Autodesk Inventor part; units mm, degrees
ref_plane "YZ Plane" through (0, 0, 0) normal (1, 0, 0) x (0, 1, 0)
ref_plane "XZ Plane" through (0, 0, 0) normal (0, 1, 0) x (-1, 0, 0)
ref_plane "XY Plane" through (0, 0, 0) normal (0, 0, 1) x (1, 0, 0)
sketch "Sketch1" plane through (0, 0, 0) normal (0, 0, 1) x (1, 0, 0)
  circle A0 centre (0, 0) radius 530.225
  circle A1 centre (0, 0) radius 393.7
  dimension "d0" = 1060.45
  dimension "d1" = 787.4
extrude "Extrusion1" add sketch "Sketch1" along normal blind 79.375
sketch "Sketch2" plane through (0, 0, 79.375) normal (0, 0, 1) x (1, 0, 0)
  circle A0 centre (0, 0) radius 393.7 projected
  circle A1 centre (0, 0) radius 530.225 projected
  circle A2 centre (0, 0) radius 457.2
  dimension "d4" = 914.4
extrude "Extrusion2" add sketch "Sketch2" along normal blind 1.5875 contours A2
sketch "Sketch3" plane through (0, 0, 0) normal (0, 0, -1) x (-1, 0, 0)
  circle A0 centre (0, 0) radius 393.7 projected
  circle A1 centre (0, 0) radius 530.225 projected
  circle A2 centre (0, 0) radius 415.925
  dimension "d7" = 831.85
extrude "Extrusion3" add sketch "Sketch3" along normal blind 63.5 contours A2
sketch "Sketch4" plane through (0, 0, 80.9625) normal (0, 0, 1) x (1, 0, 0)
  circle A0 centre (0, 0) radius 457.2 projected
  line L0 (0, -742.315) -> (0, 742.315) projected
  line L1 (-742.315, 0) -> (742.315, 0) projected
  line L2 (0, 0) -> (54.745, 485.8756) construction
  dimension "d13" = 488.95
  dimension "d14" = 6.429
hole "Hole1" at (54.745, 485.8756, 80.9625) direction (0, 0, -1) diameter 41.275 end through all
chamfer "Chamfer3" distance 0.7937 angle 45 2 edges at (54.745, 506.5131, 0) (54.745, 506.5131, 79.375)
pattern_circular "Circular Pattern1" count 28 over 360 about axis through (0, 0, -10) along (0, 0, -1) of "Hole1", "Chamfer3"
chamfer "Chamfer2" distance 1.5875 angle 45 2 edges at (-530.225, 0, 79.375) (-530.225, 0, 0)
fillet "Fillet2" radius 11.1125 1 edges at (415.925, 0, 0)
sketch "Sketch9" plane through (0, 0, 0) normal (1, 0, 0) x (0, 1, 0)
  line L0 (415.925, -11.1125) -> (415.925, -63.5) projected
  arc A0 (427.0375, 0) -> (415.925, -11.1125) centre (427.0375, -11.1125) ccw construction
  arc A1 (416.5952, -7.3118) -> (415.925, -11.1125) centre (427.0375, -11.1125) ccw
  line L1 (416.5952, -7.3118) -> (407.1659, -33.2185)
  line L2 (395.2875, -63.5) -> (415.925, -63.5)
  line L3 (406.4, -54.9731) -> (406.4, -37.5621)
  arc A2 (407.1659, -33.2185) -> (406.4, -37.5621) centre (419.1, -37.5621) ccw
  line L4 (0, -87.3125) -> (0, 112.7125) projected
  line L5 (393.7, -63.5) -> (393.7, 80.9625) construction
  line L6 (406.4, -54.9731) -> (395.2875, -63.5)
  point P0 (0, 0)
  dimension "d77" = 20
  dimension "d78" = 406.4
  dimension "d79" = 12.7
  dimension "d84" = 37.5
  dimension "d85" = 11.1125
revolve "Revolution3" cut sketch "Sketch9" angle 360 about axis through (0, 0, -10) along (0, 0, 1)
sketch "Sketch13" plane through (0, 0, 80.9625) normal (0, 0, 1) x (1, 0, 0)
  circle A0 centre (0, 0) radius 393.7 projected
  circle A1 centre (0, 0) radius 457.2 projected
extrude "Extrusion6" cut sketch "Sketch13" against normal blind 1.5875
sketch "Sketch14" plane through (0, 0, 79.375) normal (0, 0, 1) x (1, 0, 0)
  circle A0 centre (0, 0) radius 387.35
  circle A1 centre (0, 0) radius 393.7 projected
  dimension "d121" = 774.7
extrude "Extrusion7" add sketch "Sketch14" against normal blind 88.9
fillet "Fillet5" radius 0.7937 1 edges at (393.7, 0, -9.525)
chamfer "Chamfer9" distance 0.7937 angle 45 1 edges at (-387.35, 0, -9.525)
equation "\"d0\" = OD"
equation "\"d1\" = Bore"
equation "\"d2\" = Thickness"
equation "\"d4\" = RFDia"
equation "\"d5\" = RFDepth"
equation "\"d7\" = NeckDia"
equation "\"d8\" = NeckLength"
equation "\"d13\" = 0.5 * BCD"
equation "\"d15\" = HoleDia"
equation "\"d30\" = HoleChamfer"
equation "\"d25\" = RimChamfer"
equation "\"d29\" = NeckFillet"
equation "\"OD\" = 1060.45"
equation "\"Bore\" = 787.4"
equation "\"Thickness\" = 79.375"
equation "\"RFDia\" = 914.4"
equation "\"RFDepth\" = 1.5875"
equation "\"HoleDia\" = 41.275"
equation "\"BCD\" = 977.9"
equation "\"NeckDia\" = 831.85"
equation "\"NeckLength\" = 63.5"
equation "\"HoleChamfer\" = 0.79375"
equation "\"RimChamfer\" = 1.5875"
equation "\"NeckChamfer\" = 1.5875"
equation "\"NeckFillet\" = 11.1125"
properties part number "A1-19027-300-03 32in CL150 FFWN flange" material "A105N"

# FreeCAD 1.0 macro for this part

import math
import FreeCAD as App
import Part
import Sketcher
Q = App.Units.Quantity


def edges_at(feature, points):
    """Names of the edges that pass closest to the given points."""
    edges = feature.Shape.Edges
    near = lambda p: min(range(len(edges)), key=lambda i: edges[i].distToShape(Part.Vertex(*p))[0])
    return sorted({f"Edge{near(p) + 1}" for p in points})

doc = App.newDocument("Part")
params = doc.addObject("Spreadsheet::Sheet", "Params")
for row, (alias, value) in enumerate([
    ("sketch1_diameter", "31 in"),
    ("sketch1_diameter2", "41.75 in"),
    ("pad1_length", "3.125 in"),
    ("sketch2_diameter", "36 in"),
    ("sketch2_diameter2", "31 in"),
    ("pad2_length", "0.0625 in"),
    ("sketch3_diameter", "32.75 in"),
    ("sketch3_diameter2", "31 in"),
    ("pad3_length", "2.5 in"),
    ("sketch4_diameter", "1.625 in"),
    ("hole_diameter", "1.625 in"),
    ("chamfer_size", "0.031248 in"),
    ("chamfer2_size", "0.0625 in"),
    ("fillet_radius", "0.4375 in"),
    ("sketch5_radius", "0.5 in"),
    ("sketch5_width", "0.8125 in"),
    ("groove_angle", "360 deg"),
    ("sketch6_diameter", "36 in"),
    ("sketch6_diameter2", "31 in"),
    ("pocket1_length", "0.0625 in"),
    ("sketch7_diameter", "30.5 in"),
    ("sketch7_diameter2", "31 in"),
    ("pad4_length", "3.5 in"),
    ("fillet2_radius", "0.031248 in"),
    ("chamfer3_size", "0.031248 in"),
], start=1):
    params.set(f"A{row}", alias)
    params.set(f"B{row}", "=" + value)
    params.setAlias(f"B{row}", alias)

body = doc.addObject("PartDesign::Body", "Body")

# Sketch on XY plane
sketch1 = doc.addObject("Sketcher::SketchObject", "Sketch")
body.addObject(sketch1)
sketch1.AttachmentSupport = (doc.XY_Plane, [""])
sketch1.MapMode = "FlatFace"
sketch1.addGeometry([
    Part.Circle(App.Vector(0, 0, 0), App.Vector(0, 0, 1), 530.225),
    Part.Circle(App.Vector(0, 0, 0), App.Vector(0, 0, 1), 393.7),
], False)
sketch1.addConstraint([
    Sketcher.Constraint("Coincident", 0, 3, -1, 1),
    Sketcher.Constraint("Coincident", 1, 3, -1, 1),
    Sketcher.Constraint("Diameter", 1, Q("31 in")),
    Sketcher.Constraint("Diameter", 0, Q("41.75 in")),
])
sketch1.setExpression("Constraints[2]", "Params.sketch1_diameter")
sketch1.setExpression("Constraints[3]", "Params.sketch1_diameter2")
pad1 = doc.addObject("PartDesign::Pad", "Pad")
body.addObject(pad1)
pad1.Profile = sketch1
pad1.setExpression("Length", "Params.pad1_length")

# Sketch on XY plane
sketch2 = doc.addObject("Sketcher::SketchObject", "Sketch001")
body.addObject(sketch2)
sketch2.AttachmentSupport = (doc.XY_Plane, [""])
sketch2.MapMode = "FlatFace"
sketch2.AttachmentOffset = App.Placement(App.Vector(0, 0, 3.125 * 25.4), App.Rotation())
sketch2.addGeometry([
    Part.Circle(App.Vector(0, 0, 0), App.Vector(0, 0, 1), 457.2),
    Part.Circle(App.Vector(0, 0, 0), App.Vector(0, 0, 1), 393.7),
], False)
sketch2.addConstraint([
    Sketcher.Constraint("Coincident", 0, 3, -1, 1),
    Sketcher.Constraint("Coincident", 1, 3, -1, 1),
    Sketcher.Constraint("Diameter", 0, Q("36 in")),
    Sketcher.Constraint("Diameter", 1, Q("31 in")),
])
sketch2.setExpression("Constraints[2]", "Params.sketch2_diameter")
sketch2.setExpression("Constraints[3]", "Params.sketch2_diameter2")
pad2 = doc.addObject("PartDesign::Pad", "Pad001")
body.addObject(pad2)
pad2.Profile = sketch2
pad2.setExpression("Length", "Params.pad2_length")

# Sketch on XY plane
sketch3 = doc.addObject("Sketcher::SketchObject", "Sketch002")
body.addObject(sketch3)
sketch3.AttachmentSupport = (doc.XY_Plane, [""])
sketch3.MapMode = "FlatFace"
sketch3.addGeometry([
    Part.Circle(App.Vector(0, 0, 0), App.Vector(0, 0, 1), 415.925),
    Part.Circle(App.Vector(0, 0, 0), App.Vector(0, 0, 1), 393.7),
], False)
sketch3.addConstraint([
    Sketcher.Constraint("Coincident", 0, 3, -1, 1),
    Sketcher.Constraint("Coincident", 1, 3, -1, 1),
    Sketcher.Constraint("Diameter", 0, Q("32.75 in")),
    Sketcher.Constraint("Diameter", 1, Q("31 in")),
])
sketch3.setExpression("Constraints[2]", "Params.sketch3_diameter")
sketch3.setExpression("Constraints[3]", "Params.sketch3_diameter2")
pad3 = doc.addObject("PartDesign::Pad", "Pad002")
body.addObject(pad3)
pad3.Profile = sketch3
pad3.setExpression("Length", "Params.pad3_length")
pad3.Reversed = True

# Sketch on XY plane
sketch4 = doc.addObject("Sketcher::SketchObject", "Sketch003")
body.addObject(sketch4)
sketch4.AttachmentSupport = (doc.XY_Plane, [""])
sketch4.MapMode = "FlatFace"
sketch4.AttachmentOffset = App.Placement(App.Vector(0, 0, 3.1875 * 25.4), App.Rotation())
sketch4.addGeometry(Part.Circle(App.Vector(54.745, 485.8756, 0), App.Vector(0, 0, 1), 20.6375), False)
sketch4.addConstraint([
    Sketcher.Constraint("Diameter", 0, Q("1.625 in")),
    Sketcher.Constraint("DistanceX", -1, 1, 0, 3, 54.745),
    Sketcher.Constraint("DistanceY", -1, 1, 0, 3, 485.8756),
])
sketch4.setExpression("Constraints[0]", "Params.sketch4_diameter")
doc.recompute()
hole = doc.addObject("PartDesign::Hole", "Hole")
body.addObject(hole)
hole.Profile = sketch4
hole.ThreadType = "None"
hole.setExpression("Diameter", "Params.hole_diameter")
hole.DepthType = "ThroughAll"
doc.recompute()

chamfer = doc.addObject("PartDesign::Chamfer", "Chamfer")
body.addObject(chamfer)
chamfer.Base = (hole, edges_at(hole, [(54.745, 506.513, 0), (54.745, 506.513, 79.375)]))
chamfer.setExpression("Size", "Params.chamfer_size")
doc.recompute()

polarpattern = doc.addObject("PartDesign::PolarPattern", "PolarPattern")
body.addObject(polarpattern)
polarpattern.Originals = [hole, chamfer]
polarpattern.Axis = (doc.Z_Axis, [""])
polarpattern.Angle = 360
polarpattern.Occurrences = 28
body.Tip = polarpattern
doc.recompute()

chamfer2 = doc.addObject("PartDesign::Chamfer", "Chamfer001")
body.addObject(chamfer2)
chamfer2.Base = (polarpattern, edges_at(polarpattern, [(-530.225, 0, 79.375), (-530.225, 0, 0)]))
chamfer2.setExpression("Size", "Params.chamfer2_size")
doc.recompute()

fillet = doc.addObject("PartDesign::Fillet", "Fillet")
body.addObject(fillet)
fillet.Base = (chamfer2, edges_at(chamfer2, [(415.925, 0, 0)]))
fillet.setExpression("Radius", "Params.fillet_radius")

# Sketch on YZ plane
sketch5 = doc.addObject("Sketcher::SketchObject", "Sketch004")
body.addObject(sketch5)
sketch5.AttachmentSupport = (doc.YZ_Plane, [""])
sketch5.MapMode = "FlatFace"
sketch5.addGeometry([
    Part.LineSegment(App.Vector(415.925, -63.5, 0), App.Vector(415.925, -11.1125, 0)),  # 0
    Part.ArcOfCircle(Part.Circle(App.Vector(427.038514, -11.112772, 0), App.Vector(0, 0, 1), 11.113514), math.radians(160.000406), math.radians(179.998599)),  # 1
    Part.LineSegment(App.Vector(416.5952, -7.3118, 0), App.Vector(407.1659, -33.2185, 0)),  # 2
    Part.ArcOfCircle(Part.Circle(App.Vector(419.1, -37.5621, 0), App.Vector(0, 0, 1), 12.699984), math.radians(160.000242), math.radians(180)),  # 3
    Part.LineSegment(App.Vector(406.4, -37.5621, 0), App.Vector(406.4, -54.9731, 0)),  # 4
    Part.LineSegment(App.Vector(406.4, -54.9731, 0), App.Vector(395.2875, -63.5, 0)),  # 5
    Part.LineSegment(App.Vector(395.2875, -63.5, 0), App.Vector(415.925, -63.5, 0)),  # 6
], False)
sketch5.addConstraint([
    Sketcher.Constraint("Tangent", 0, 2, 1, 2),
    Sketcher.Constraint("Tangent", 1, 1, 2, 1),
    Sketcher.Constraint("Tangent", 2, 2, 3, 1),
    Sketcher.Constraint("Tangent", 3, 2, 4, 1),
    Sketcher.Constraint("Coincident", 4, 2, 5, 1),
    Sketcher.Constraint("Coincident", 5, 2, 6, 1),
    Sketcher.Constraint("Coincident", 6, 2, 0, 1),
    Sketcher.Constraint("Vertical", 0),
    Sketcher.Constraint("Vertical", 4),
    Sketcher.Constraint("Horizontal", 6),
    Sketcher.Constraint("Radius", 3, Q("0.5 in")),
    Sketcher.Constraint("DistanceX", -1, 1, 3, 2, Q("16 in")),
    Sketcher.Constraint("DistanceY", 0, 2, -1, 1, Q("0.4375 in")),
    Sketcher.Constraint("Angle", 2, Q("-110 deg")),
    Sketcher.Constraint("DistanceX", 5, 2, 4, 2, Q("0.4375 in")),
    Sketcher.Constraint("DistanceY", 5, 2, -1, 1, Q("2.5 in")),
    Sketcher.Constraint("Angle", 5, Q("-142.5 deg")),
    Sketcher.Constraint("DistanceX", 6, 1, 6, 2, Q("0.8125 in")),
    Sketcher.Constraint("Radius", 1, 11.1135),
])
sketch5.setExpression("Constraints[10]", "Params.sketch5_radius")
sketch5.setExpression("Constraints[17]", "Params.sketch5_width")
groove = doc.addObject("PartDesign::Groove", "Groove")
body.addObject(groove)
groove.Profile = sketch5
groove.ReferenceAxis = (sketch5, ["V_Axis"])
groove.setExpression("Angle", "Params.groove_angle")

# Sketch on XY plane
sketch6 = doc.addObject("Sketcher::SketchObject", "Sketch005")
body.addObject(sketch6)
sketch6.AttachmentSupport = (doc.XY_Plane, [""])
sketch6.MapMode = "FlatFace"
sketch6.AttachmentOffset = App.Placement(App.Vector(0, 0, 3.1875 * 25.4), App.Rotation())
sketch6.addGeometry([
    Part.Circle(App.Vector(0, 0, 0), App.Vector(0, 0, 1), 457.2),
    Part.Circle(App.Vector(0, 0, 0), App.Vector(0, 0, 1), 393.7),
], False)
sketch6.addConstraint([
    Sketcher.Constraint("Coincident", 0, 3, -1, 1),
    Sketcher.Constraint("Coincident", 1, 3, -1, 1),
    Sketcher.Constraint("Diameter", 0, Q("36 in")),
    Sketcher.Constraint("Diameter", 1, Q("31 in")),
])
sketch6.setExpression("Constraints[2]", "Params.sketch6_diameter")
sketch6.setExpression("Constraints[3]", "Params.sketch6_diameter2")
pocket1 = doc.addObject("PartDesign::Pocket", "Pocket")
body.addObject(pocket1)
pocket1.Profile = sketch6
pocket1.setExpression("Length", "Params.pocket1_length")

# Sketch on XY plane
sketch7 = doc.addObject("Sketcher::SketchObject", "Sketch006")
body.addObject(sketch7)
sketch7.AttachmentSupport = (doc.XY_Plane, [""])
sketch7.MapMode = "FlatFace"
sketch7.AttachmentOffset = App.Placement(App.Vector(0, 0, 3.125 * 25.4), App.Rotation())
sketch7.addGeometry([
    Part.Circle(App.Vector(0, 0, 0), App.Vector(0, 0, 1), 393.7),
    Part.Circle(App.Vector(0, 0, 0), App.Vector(0, 0, 1), 387.35),
], False)
sketch7.addConstraint([
    Sketcher.Constraint("Coincident", 0, 3, -1, 1),
    Sketcher.Constraint("Coincident", 1, 3, -1, 1),
    Sketcher.Constraint("Diameter", 1, Q("30.5 in")),
    Sketcher.Constraint("Diameter", 0, Q("31 in")),
])
sketch7.setExpression("Constraints[2]", "Params.sketch7_diameter")
sketch7.setExpression("Constraints[3]", "Params.sketch7_diameter2")
pad4 = doc.addObject("PartDesign::Pad", "Pad003")
body.addObject(pad4)
pad4.Profile = sketch7
pad4.setExpression("Length", "Params.pad4_length")
pad4.Reversed = True
doc.recompute()

fillet2 = doc.addObject("PartDesign::Fillet", "Fillet001")
body.addObject(fillet2)
fillet2.Base = (pad4, edges_at(pad4, [(393.7, 0, -9.525)]))
fillet2.setExpression("Radius", "Params.fillet2_radius")
doc.recompute()

chamfer3 = doc.addObject("PartDesign::Chamfer", "Chamfer002")
body.addObject(chamfer3)
chamfer3.Base = (fillet2, edges_at(fillet2, [(-387.35, 0, -9.525)]))
chamfer3.setExpression("Size", "Params.chamfer3_size")

doc.recompute()
